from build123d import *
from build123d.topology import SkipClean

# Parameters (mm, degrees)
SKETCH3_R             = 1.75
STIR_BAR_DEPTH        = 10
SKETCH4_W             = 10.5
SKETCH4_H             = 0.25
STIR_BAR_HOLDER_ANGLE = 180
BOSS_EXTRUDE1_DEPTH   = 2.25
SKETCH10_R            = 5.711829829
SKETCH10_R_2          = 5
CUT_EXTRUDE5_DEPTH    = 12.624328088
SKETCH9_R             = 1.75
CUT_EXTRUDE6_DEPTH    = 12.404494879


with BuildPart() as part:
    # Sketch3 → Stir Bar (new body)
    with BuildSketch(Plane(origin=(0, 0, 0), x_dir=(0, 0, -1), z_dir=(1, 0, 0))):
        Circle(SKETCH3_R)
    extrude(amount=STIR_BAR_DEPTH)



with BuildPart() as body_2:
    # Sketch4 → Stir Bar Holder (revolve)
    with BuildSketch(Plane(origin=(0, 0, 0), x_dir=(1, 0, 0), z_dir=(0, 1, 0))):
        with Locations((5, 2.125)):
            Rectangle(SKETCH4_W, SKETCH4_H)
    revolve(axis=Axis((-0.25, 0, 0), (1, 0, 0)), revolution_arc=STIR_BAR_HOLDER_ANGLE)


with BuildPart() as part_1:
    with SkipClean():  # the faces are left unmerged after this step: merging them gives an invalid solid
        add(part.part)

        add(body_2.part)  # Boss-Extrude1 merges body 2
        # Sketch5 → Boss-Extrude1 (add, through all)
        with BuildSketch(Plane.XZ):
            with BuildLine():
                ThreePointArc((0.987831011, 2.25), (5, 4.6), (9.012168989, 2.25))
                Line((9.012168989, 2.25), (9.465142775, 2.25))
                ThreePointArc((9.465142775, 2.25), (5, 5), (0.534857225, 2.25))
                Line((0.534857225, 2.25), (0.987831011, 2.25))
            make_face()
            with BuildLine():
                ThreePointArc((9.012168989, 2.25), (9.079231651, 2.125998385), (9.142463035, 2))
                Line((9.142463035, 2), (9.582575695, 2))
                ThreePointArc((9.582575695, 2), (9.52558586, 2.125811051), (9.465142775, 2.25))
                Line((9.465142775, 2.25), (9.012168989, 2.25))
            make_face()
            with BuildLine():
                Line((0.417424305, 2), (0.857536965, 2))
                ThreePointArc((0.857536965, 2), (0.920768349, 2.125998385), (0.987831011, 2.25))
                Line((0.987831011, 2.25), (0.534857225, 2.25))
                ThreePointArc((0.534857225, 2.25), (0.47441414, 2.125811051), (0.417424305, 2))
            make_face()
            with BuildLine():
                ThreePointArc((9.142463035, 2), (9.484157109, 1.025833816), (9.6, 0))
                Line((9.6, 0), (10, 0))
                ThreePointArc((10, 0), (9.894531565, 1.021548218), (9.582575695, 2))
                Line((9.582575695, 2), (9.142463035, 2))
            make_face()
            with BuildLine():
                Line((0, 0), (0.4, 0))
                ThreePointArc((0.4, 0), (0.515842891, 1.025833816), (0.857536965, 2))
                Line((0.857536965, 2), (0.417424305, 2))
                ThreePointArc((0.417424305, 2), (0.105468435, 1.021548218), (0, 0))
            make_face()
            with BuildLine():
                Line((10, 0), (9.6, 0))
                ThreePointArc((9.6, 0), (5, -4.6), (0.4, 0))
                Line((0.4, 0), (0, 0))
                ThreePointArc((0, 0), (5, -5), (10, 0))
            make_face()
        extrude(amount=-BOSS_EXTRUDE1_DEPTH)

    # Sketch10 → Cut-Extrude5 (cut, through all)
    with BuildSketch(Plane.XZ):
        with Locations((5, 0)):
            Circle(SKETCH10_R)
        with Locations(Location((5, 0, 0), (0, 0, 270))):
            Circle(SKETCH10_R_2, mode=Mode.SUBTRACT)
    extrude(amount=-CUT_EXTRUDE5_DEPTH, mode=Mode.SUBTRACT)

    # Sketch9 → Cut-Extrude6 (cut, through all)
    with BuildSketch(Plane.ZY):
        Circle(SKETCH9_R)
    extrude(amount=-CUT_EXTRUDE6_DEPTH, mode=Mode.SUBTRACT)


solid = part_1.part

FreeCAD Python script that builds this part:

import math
import FreeCAD as App
import Part
import Sketcher


def add_polygon(sketch, points):
    """Adds a closed chain of lines whose ends are joined by coincident constraints."""
    first, n = sketch.GeometryCount, len(points)
    for a, b in zip(points, points[1:] + points[:1]):
        sketch.addGeometry(Part.LineSegment(App.Vector(*a, 0), App.Vector(*b, 0)), False)
    for i in range(n):
        sketch.addConstraint(Sketcher.Constraint("Coincident", first + i, 2, first + (i + 1) % n, 1))

doc = App.newDocument("Part")
body = doc.addObject("PartDesign::Body", "Body")

sketch1 = body.newObject("Sketcher::SketchObject", "Sketch")
sketch1.AttachmentSupport = (doc.getObject("YZ_Plane"), [""])
sketch1.MapMode = "FlatFace"
sketch1.addGeometry(Part.Circle(App.Vector(0, 0, 0), App.Vector(0, 0, 1), 1.8), False)
sketch1.addConstraint(Sketcher.Constraint("Coincident", 0, 3, -1, 1))
sketch1.addConstraint(Sketcher.Constraint("Diameter", 0, 3.5))
pad1 = body.newObject("PartDesign::Pad", "Pad")
pad1.Profile = sketch1
pad1.Length = 10
body2 = doc.addObject("PartDesign::Body", "Body001")

sketch2 = body2.newObject("Sketcher::SketchObject", "Sketch001")
sketch2.AttachmentSupport = (doc.getObject("XZ_Plane001"), [""])
sketch2.MapMode = "FlatFace"
add_polygon(sketch2, [(-0.25, -2.25), (-0.25, -2), (10.25, -2), (10.25, -2.25)])
sketch2.addConstraint(Sketcher.Constraint("Vertical", 0))
sketch2.addConstraint(Sketcher.Constraint("Horizontal", 1))
sketch2.addConstraint(Sketcher.Constraint("Vertical", 2))
sketch2.addConstraint(Sketcher.Constraint("Horizontal", 3))
sketch2.addConstraint(Sketcher.Constraint("DistanceX", 1, 1, 1, 2, 10.5))
sketch2.addConstraint(Sketcher.Constraint("DistanceY", 0, 2, -1, 1, 2.0))
sketch2.addConstraint(Sketcher.Constraint("DistanceY", 0, 1, 0, 2, 0.25))
sketch2.addConstraint(Sketcher.Constraint("DistanceX", 0, 2, -1, 1, 0.25))
revolution = body2.newObject("PartDesign::Revolution", "Revolution")
revolution.Profile = sketch2
revolution.ReferenceAxis = (sketch2, ["H_Axis"])
revolution.Angle = 180
body.AllowCompound = True
doc.recompute()

boolean = body.newObject("PartDesign::Boolean", "Boolean")
boolean.Type = "Fuse"
boolean.addObjects([body2])

sketch3 = body.newObject("Sketcher::SketchObject", "Sketch002")
sketch3.AttachmentSupport = (doc.getObject("XZ_Plane"), [""])
sketch3.MapMode = "FlatFace"
sketch3.addGeometry(Part.ArcOfCircle(Part.Circle(App.Vector(5, 0, 0), App.Vector(0, 0, 1), 4.6), math.radians(29), math.radians(151)), False)
sketch3.addGeometry(Part.LineSegment(App.Vector(9.01, 2.25, 0), App.Vector(9.47, 2.25, 0)), False)
sketch3.addGeometry(Part.ArcOfCircle(Part.Circle(App.Vector(5, 0, 0), App.Vector(0, 0, 1), 5), math.radians(27), math.radians(153)), False)
sketch3.addGeometry(Part.LineSegment(App.Vector(0.53, 2.25, 0), App.Vector(0.99, 2.25, 0)), False)
sketch3.addGeometry(Part.ArcOfCircle(Part.Circle(App.Vector(5, 0, 0), App.Vector(0, 0, 1), 4.6), math.radians(25.77), math.radians(29.28)), False)
sketch3.addGeometry(Part.LineSegment(App.Vector(9.14, 2, 0), App.Vector(9.58, 2, 0)), False)
sketch3.addGeometry(Part.ArcOfCircle(Part.Circle(App.Vector(5, 0, 0), App.Vector(0, 0, 1), 5), math.radians(23.58), math.radians(26.74)), False)
sketch3.addGeometry(Part.LineSegment(App.Vector(9.47, 2.25, 0), App.Vector(9.01, 2.25, 0)), False)
sketch3.addGeometry(Part.LineSegment(App.Vector(0.42, 2, 0), App.Vector(0.86, 2, 0)), False)
sketch3.addGeometry(Part.ArcOfCircle(Part.Circle(App.Vector(5, 0, 0), App.Vector(0, 0, 1), 4.6), math.radians(150.72), math.radians(154.23)), False)
sketch3.addGeometry(Part.LineSegment(App.Vector(0.99, 2.25, 0), App.Vector(0.53, 2.25, 0)), False)
sketch3.addGeometry(Part.ArcOfCircle(Part.Circle(App.Vector(5, 0, 0), App.Vector(0, 0, 1), 5), math.radians(153.26), math.radians(156.42)), False)
sketch3.addGeometry(Part.ArcOfCircle(Part.Circle(App.Vector(5, 0, 0), App.Vector(0, 0, 1), 4.6), math.radians(0), math.radians(26)), False)
sketch3.addGeometry(Part.LineSegment(App.Vector(9.6, 0, 0), App.Vector(10, 0, 0)), False)
sketch3.addGeometry(Part.ArcOfCircle(Part.Circle(App.Vector(5, 0, 0), App.Vector(0, 0, 1), 5), math.radians(0), math.radians(24)), False)
sketch3.addGeometry(Part.LineSegment(App.Vector(9.58, 2, 0), App.Vector(9.14, 2, 0)), False)
sketch3.addGeometry(Part.LineSegment(App.Vector(0, 0, 0), App.Vector(0.4, 0, 0)), False)
sketch3.addGeometry(Part.ArcOfCircle(Part.Circle(App.Vector(5, 0, 0), App.Vector(0, 0, 1), 4.6), math.radians(154), math.radians(180)), False)
sketch3.addGeometry(Part.LineSegment(App.Vector(0.86, 2, 0), App.Vector(0.42, 2, 0)), False)
sketch3.addGeometry(Part.ArcOfCircle(Part.Circle(App.Vector(5, 0, 0), App.Vector(0, 0, 1), 5), math.radians(156), math.radians(180)), False)
sketch3.addGeometry(Part.LineSegment(App.Vector(10, 0, 0), App.Vector(9.6, 0, 0)), False)
sketch3.addGeometry(Part.ArcOfCircle(Part.Circle(App.Vector(5, 0, 0), App.Vector(0, 0, 1), 4.6), math.radians(180), math.radians(360)), False)
sketch3.addGeometry(Part.LineSegment(App.Vector(0.4, 0, 0), App.Vector(0, 0, 0)), False)
sketch3.addGeometry(Part.ArcOfCircle(Part.Circle(App.Vector(5, 0, 0), App.Vector(0, 0, 1), 5), math.radians(180), math.radians(360)), False)
sketch3.addConstraint(Sketcher.Constraint("Coincident", 0, 1, 1, 1))
sketch3.addConstraint(Sketcher.Constraint("Coincident", 1, 2, 2, 1))
sketch3.addConstraint(Sketcher.Constraint("Coincident", 2, 2, 3, 1))
sketch3.addConstraint(Sketcher.Constraint("Coincident", 3, 2, 0, 2))
sketch3.addConstraint(Sketcher.Constraint("Coincident", 4, 1, 5, 1))
sketch3.addConstraint(Sketcher.Constraint("Coincident", 5, 2, 6, 1))
sketch3.addConstraint(Sketcher.Constraint("Coincident", 6, 2, 7, 1))
sketch3.addConstraint(Sketcher.Constraint("Coincident", 7, 2, 4, 2))
sketch3.addConstraint(Sketcher.Constraint("Coincident", 8, 2, 9, 2))
sketch3.addConstraint(Sketcher.Constraint("Coincident", 9, 1, 10, 1))
sketch3.addConstraint(Sketcher.Constraint("Coincident", 10, 2, 11, 1))
sketch3.addConstraint(Sketcher.Constraint("Coincident", 11, 2, 8, 1))
sketch3.addConstraint(Sketcher.Constraint("Coincident", 12, 1, 13, 1))
sketch3.addConstraint(Sketcher.Constraint("Coincident", 13, 2, 14, 1))
sketch3.addConstraint(Sketcher.Constraint("Coincident", 14, 2, 15, 1))
sketch3.addConstraint(Sketcher.Constraint("Coincident", 15, 2, 12, 2))
sketch3.addConstraint(Sketcher.Constraint("Coincident", 16, 2, 17, 2))
sketch3.addConstraint(Sketcher.Constraint("Coincident", 17, 1, 18, 1))
sketch3.addConstraint(Sketcher.Constraint("Coincident", 18, 2, 19, 1))
sketch3.addConstraint(Sketcher.Constraint("Coincident", 19, 2, 16, 1))
sketch3.addConstraint(Sketcher.Constraint("Coincident", 20, 2, 21, 2))
sketch3.addConstraint(Sketcher.Constraint("Coincident", 21, 1, 22, 1))
sketch3.addConstraint(Sketcher.Constraint("Coincident", 22, 2, 23, 1))
sketch3.addConstraint(Sketcher.Constraint("Coincident", 23, 2, 20, 1))
sketch3.addConstraint(Sketcher.Constraint("Horizontal", 1))
sketch3.addConstraint(Sketcher.Constraint("Horizontal", 3))
sketch3.addConstraint(Sketcher.Constraint("Horizontal", 5))
sketch3.addConstraint(Sketcher.Constraint("Horizontal", 7))
sketch3.addConstraint(Sketcher.Constraint("Horizontal", 8))
sketch3.addConstraint(Sketcher.Constraint("Horizontal", 10))
sketch3.addConstraint(Sketcher.Constraint("Horizontal", 13))
sketch3.addConstraint(Sketcher.Constraint("Horizontal", 15))
sketch3.addConstraint(Sketcher.Constraint("Horizontal", 16))
sketch3.addConstraint(Sketcher.Constraint("Horizontal", 18))
sketch3.addConstraint(Sketcher.Constraint("Horizontal", 20))
sketch3.addConstraint(Sketcher.Constraint("Horizontal", 22))
sketch3.addConstraint(Sketcher.Constraint("Coincident", 19, 2, -1, 1))
sketch3.addConstraint(Sketcher.Constraint("Coincident", 22, 2, -1, 1))
sketch3.addConstraint(Sketcher.Constraint("Coincident", 2, 3, 0, 3))
sketch3.addConstraint(Sketcher.Constraint("Coincident", 4, 3, 0, 3))
sketch3.addConstraint(Sketcher.Constraint("Coincident", 6, 3, 0, 3))
sketch3.addConstraint(Sketcher.Constraint("Coincident", 9, 3, 0, 3))
sketch3.addConstraint(Sketcher.Constraint("Coincident", 11, 3, 0, 3))
sketch3.addConstraint(Sketcher.Constraint("Coincident", 12, 3, 0, 3))
sketch3.addConstraint(Sketcher.Constraint("Coincident", 14, 3, 0, 3))
sketch3.addConstraint(Sketcher.Constraint("Coincident", 17, 3, 0, 3))
sketch3.addConstraint(Sketcher.Constraint("Coincident", 19, 3, 0, 3))
sketch3.addConstraint(Sketcher.Constraint("Coincident", 21, 3, 0, 3))
sketch3.addConstraint(Sketcher.Constraint("Coincident", 23, 3, 0, 3))
sketch3.addConstraint(Sketcher.Constraint("Coincident", 6, 2, 1, 2))
sketch3.addConstraint(Sketcher.Constraint("Coincident", 9, 1, 3, 2))
sketch3.addConstraint(Sketcher.Constraint("Coincident", 14, 2, 5, 2))
sketch3.addConstraint(Sketcher.Constraint("Coincident", 17, 1, 8, 2))
sketch3.addConstraint(Sketcher.Constraint("Coincident", 20, 2, 12, 1))
sketch3.addConstraint(Sketcher.Constraint("Equal", 0, 4))
sketch3.addConstraint(Sketcher.Constraint("Equal", 6, 11))
sketch3.addConstraint(Sketcher.Constraint("Equal", 9, 12))
sketch3.addConstraint(Sketcher.Constraint("Equal", 14, 19))
sketch3.addConstraint(Sketcher.Constraint("PointOnObject", 0, 3, -1))
sketch3.addConstraint(Sketcher.Constraint("PointOnObject", 12, 1, -1))
sketch3.addConstraint(Sketcher.Constraint("Horizontal", 1, 2, 2, 2))
sketch3.addConstraint(Sketcher.Constraint("Horizontal", 5, 2, 8, 2))
sketch3.addConstraint(Sketcher.Constraint("Radius", 2, 5.0))
sketch3.addConstraint(Sketcher.Constraint("Radius", 0, 4.6))
sketch3.addConstraint(Sketcher.Constraint("DistanceY", -1, 1, 4, 1, 2.0))
sketch3.addConstraint(Sketcher.Constraint("DistanceY", -1, 1, 0, 1, 2.25))
pad2 = body.newObject("PartDesign::Pad", "Pad001")
pad2.Profile = sketch3
pad2.Length = 2.25
pad2.Reversed = True

sketch4 = body.newObject("Sketcher::SketchObject", "Sketch003")
sketch4.AttachmentSupport = (doc.getObject("XZ_Plane"), [""])
sketch4.MapMode = "FlatFace"
sketch4.addGeometry(Part.Circle(App.Vector(5, 0, 0), App.Vector(0, 0, 1), 6), False)
sketch4.addGeometry(Part.Circle(App.Vector(5, 0, 0), App.Vector(0, 0, 1), 5), False)
sketch4.addConstraint(Sketcher.Constraint("Coincident", 1, 3, 0, 3))
sketch4.addConstraint(Sketcher.Constraint("PointOnObject", 0, 3, -1))
sketch4.addConstraint(Sketcher.Constraint("Diameter", 1, 10.0))
sketch4.addConstraint(Sketcher.Constraint("DistanceX", -1, 1, 0, 3, 5.0))
sketch4.addConstraint(Sketcher.Constraint("Diameter", 0, 11.42366))
pocket1 = body.newObject("PartDesign::Pocket", "Pocket")
pocket1.Profile = sketch4
pocket1.Type = "ThroughAll"

sketch5 = body.newObject("Sketcher::SketchObject", "Sketch004")
sketch5.AttachmentSupport = (doc.getObject("YZ_Plane"), [""])
sketch5.MapMode = "FlatFace"
sketch5.addGeometry(Part.Circle(App.Vector(0, 0, 0), App.Vector(0, 0, 1), 1.8), False)
sketch5.addConstraint(Sketcher.Constraint("Coincident", 0, 3, -1, 1))
sketch5.addConstraint(Sketcher.Constraint("Diameter", 0, 3.5))
pocket2 = body.newObject("PartDesign::Pocket", "Pocket001")
pocket2.Profile = sketch5
pocket2.Type = "ThroughAll"
pocket2.Reversed = True

doc.recompute()
